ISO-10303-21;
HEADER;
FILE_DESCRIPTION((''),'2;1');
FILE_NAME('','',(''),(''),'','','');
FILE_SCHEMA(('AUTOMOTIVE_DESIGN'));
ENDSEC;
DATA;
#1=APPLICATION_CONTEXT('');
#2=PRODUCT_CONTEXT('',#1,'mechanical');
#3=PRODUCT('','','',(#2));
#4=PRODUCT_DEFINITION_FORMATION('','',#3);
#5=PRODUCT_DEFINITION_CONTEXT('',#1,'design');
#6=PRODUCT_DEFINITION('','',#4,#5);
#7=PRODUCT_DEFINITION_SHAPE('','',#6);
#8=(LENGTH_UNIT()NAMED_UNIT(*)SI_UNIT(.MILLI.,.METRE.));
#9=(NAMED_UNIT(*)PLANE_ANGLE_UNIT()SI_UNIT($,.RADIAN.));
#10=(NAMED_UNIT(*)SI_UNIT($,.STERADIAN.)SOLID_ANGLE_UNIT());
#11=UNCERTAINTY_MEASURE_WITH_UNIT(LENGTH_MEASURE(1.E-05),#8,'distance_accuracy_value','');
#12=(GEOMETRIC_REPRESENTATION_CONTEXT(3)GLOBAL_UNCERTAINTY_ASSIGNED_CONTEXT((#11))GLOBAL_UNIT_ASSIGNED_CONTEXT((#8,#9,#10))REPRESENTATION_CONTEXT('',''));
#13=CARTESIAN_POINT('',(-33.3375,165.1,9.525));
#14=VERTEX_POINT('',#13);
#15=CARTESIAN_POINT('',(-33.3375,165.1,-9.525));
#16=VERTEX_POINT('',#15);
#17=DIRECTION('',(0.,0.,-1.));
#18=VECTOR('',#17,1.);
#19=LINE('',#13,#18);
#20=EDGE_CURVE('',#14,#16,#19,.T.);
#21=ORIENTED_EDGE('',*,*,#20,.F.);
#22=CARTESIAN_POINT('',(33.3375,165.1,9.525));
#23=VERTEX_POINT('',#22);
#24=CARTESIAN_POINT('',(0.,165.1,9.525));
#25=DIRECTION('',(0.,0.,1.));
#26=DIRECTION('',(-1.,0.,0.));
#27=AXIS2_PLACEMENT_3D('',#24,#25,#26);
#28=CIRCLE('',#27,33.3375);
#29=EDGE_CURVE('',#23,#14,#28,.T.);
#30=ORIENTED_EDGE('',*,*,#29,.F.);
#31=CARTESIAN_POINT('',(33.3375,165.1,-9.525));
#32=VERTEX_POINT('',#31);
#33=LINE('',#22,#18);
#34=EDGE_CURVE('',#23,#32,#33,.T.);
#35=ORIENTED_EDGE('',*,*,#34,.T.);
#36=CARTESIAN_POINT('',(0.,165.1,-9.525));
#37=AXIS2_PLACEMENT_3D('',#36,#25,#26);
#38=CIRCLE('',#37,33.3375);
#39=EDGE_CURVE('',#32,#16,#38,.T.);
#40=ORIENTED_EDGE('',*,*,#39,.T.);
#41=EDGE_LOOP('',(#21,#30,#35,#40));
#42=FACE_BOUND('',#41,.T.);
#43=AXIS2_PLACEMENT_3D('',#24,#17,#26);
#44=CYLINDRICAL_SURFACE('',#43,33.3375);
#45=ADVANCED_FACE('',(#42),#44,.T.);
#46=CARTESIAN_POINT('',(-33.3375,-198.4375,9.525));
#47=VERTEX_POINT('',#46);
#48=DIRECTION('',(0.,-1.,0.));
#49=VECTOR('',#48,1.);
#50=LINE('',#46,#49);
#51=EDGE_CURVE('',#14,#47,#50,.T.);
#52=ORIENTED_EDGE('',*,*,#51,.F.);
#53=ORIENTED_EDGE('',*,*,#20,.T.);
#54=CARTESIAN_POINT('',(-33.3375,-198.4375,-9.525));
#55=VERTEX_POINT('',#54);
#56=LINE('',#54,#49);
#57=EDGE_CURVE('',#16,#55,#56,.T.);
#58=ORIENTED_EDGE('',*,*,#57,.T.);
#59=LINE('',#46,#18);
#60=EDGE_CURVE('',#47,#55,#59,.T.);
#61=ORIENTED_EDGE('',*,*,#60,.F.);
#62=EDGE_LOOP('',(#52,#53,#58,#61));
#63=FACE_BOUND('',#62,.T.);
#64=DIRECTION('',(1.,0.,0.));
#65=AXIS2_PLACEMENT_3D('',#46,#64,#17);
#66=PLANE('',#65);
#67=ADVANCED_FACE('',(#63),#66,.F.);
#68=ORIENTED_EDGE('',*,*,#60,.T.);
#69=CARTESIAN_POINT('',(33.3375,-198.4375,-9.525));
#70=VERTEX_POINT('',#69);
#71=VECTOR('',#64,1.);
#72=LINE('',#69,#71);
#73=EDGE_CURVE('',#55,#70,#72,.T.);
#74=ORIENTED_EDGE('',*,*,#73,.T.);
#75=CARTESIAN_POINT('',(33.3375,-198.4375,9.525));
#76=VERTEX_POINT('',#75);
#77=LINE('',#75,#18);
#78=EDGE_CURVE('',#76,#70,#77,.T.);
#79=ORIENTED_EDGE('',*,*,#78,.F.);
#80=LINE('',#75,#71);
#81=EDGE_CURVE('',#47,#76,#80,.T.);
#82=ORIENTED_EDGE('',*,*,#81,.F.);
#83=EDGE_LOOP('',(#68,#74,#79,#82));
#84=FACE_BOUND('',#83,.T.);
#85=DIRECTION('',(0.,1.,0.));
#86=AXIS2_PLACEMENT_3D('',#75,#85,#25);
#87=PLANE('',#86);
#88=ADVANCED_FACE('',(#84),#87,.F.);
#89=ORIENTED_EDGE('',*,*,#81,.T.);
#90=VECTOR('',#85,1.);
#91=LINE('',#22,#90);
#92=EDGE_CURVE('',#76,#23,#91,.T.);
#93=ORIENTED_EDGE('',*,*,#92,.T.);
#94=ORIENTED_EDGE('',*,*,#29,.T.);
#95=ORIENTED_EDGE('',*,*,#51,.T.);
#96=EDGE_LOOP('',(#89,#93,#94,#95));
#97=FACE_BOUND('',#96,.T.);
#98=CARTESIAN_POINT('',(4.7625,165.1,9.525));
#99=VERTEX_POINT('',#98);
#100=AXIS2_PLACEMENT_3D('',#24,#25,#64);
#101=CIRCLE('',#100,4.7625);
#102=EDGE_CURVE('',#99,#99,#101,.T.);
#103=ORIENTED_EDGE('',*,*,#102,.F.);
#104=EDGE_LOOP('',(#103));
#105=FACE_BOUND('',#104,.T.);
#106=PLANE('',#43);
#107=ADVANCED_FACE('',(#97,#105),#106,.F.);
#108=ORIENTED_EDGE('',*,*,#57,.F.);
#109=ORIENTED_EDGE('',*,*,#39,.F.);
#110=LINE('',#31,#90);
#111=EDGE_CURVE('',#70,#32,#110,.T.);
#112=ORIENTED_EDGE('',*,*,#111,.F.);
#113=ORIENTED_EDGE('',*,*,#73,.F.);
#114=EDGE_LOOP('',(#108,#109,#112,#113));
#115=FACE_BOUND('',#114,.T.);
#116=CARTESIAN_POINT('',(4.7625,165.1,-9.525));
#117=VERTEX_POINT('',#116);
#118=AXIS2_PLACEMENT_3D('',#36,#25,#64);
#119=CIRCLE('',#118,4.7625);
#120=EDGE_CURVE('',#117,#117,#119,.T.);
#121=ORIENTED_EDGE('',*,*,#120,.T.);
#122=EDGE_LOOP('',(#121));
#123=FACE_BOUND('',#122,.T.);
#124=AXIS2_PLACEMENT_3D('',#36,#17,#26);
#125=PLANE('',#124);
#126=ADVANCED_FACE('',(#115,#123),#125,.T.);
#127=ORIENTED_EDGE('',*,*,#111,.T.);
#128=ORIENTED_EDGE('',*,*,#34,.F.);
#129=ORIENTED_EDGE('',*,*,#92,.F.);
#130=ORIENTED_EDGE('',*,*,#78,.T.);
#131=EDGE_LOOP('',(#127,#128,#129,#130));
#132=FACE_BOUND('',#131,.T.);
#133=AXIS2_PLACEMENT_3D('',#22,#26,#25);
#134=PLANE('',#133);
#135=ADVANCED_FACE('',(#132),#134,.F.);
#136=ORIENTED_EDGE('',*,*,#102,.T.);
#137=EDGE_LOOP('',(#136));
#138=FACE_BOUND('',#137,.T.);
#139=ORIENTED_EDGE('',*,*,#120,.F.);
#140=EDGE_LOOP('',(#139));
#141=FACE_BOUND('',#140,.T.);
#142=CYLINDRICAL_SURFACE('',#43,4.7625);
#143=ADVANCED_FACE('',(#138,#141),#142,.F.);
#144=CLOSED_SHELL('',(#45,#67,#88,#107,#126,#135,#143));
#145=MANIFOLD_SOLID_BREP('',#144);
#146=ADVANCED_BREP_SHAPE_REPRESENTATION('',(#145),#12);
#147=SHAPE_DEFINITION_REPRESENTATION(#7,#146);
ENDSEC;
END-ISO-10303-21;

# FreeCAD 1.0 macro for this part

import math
import FreeCAD as App
import Part
import Sketcher

V = App.Vector
Q = App.Units.Quantity

doc = App.newDocument("Part")
body = doc.addObject("PartDesign::Body", "Body")

sketch1 = body.newObject("Sketcher::SketchObject", "Sketch")
sketch1.AttachmentSupport = (doc.getObject("XY_Plane"), [""])
sketch1.MapMode = "FlatFace"
sketch1.addGeometry([
    Part.LineSegment(V(-33.3375, -198.4375, 0), V(33.3375, -198.4375, 0)),
    Part.LineSegment(V(33.3375, -198.4375, 0), V(33.3375, 165.1, 0)),
    Part.ArcOfCircle(Part.Circle(V(0, 165.1, 0), V(0, 0, 1), 33.3375), math.radians(0), math.radians(180)),
    Part.LineSegment(V(-33.3375, 165.1, 0), V(-33.3375, -198.4375, 0)),
    Part.Circle(V(0, 165.1, 0), V(0, 0, 1), 4.7625),
], False)
sketch1.addConstraint([
    Sketcher.Constraint("Coincident", 0, 2, 1, 1),
    Sketcher.Constraint("Tangent", 1, 2, 2, 1),
    Sketcher.Constraint("Tangent", 2, 2, 3, 1),
    Sketcher.Constraint("Coincident", 3, 2, 0, 1),
    Sketcher.Constraint("Horizontal", 0),
    Sketcher.Constraint("Vertical", 1),
    Sketcher.Constraint("Vertical", 3),
    Sketcher.Constraint("Coincident", 4, 3, 2, 3),
    Sketcher.Constraint("PointOnObject", 2, 3, -2),
    Sketcher.Constraint("Diameter", 4, Q("0.375 in")),
    Sketcher.Constraint("Radius", 2, Q("1.3125 in")),
    Sketcher.Constraint("DistanceY", -1, 1, 2, 3, Q("6.5 in")),
    Sketcher.Constraint("DistanceY", 1, 1, 1, 2, Q("14.3125 in")),
])
pad1 = body.newObject("PartDesign::Pad", "Pad")
pad1.Profile = sketch1
pad1.Length = Q("0.75 in")
pad1.Midplane = True

doc.recompute()
